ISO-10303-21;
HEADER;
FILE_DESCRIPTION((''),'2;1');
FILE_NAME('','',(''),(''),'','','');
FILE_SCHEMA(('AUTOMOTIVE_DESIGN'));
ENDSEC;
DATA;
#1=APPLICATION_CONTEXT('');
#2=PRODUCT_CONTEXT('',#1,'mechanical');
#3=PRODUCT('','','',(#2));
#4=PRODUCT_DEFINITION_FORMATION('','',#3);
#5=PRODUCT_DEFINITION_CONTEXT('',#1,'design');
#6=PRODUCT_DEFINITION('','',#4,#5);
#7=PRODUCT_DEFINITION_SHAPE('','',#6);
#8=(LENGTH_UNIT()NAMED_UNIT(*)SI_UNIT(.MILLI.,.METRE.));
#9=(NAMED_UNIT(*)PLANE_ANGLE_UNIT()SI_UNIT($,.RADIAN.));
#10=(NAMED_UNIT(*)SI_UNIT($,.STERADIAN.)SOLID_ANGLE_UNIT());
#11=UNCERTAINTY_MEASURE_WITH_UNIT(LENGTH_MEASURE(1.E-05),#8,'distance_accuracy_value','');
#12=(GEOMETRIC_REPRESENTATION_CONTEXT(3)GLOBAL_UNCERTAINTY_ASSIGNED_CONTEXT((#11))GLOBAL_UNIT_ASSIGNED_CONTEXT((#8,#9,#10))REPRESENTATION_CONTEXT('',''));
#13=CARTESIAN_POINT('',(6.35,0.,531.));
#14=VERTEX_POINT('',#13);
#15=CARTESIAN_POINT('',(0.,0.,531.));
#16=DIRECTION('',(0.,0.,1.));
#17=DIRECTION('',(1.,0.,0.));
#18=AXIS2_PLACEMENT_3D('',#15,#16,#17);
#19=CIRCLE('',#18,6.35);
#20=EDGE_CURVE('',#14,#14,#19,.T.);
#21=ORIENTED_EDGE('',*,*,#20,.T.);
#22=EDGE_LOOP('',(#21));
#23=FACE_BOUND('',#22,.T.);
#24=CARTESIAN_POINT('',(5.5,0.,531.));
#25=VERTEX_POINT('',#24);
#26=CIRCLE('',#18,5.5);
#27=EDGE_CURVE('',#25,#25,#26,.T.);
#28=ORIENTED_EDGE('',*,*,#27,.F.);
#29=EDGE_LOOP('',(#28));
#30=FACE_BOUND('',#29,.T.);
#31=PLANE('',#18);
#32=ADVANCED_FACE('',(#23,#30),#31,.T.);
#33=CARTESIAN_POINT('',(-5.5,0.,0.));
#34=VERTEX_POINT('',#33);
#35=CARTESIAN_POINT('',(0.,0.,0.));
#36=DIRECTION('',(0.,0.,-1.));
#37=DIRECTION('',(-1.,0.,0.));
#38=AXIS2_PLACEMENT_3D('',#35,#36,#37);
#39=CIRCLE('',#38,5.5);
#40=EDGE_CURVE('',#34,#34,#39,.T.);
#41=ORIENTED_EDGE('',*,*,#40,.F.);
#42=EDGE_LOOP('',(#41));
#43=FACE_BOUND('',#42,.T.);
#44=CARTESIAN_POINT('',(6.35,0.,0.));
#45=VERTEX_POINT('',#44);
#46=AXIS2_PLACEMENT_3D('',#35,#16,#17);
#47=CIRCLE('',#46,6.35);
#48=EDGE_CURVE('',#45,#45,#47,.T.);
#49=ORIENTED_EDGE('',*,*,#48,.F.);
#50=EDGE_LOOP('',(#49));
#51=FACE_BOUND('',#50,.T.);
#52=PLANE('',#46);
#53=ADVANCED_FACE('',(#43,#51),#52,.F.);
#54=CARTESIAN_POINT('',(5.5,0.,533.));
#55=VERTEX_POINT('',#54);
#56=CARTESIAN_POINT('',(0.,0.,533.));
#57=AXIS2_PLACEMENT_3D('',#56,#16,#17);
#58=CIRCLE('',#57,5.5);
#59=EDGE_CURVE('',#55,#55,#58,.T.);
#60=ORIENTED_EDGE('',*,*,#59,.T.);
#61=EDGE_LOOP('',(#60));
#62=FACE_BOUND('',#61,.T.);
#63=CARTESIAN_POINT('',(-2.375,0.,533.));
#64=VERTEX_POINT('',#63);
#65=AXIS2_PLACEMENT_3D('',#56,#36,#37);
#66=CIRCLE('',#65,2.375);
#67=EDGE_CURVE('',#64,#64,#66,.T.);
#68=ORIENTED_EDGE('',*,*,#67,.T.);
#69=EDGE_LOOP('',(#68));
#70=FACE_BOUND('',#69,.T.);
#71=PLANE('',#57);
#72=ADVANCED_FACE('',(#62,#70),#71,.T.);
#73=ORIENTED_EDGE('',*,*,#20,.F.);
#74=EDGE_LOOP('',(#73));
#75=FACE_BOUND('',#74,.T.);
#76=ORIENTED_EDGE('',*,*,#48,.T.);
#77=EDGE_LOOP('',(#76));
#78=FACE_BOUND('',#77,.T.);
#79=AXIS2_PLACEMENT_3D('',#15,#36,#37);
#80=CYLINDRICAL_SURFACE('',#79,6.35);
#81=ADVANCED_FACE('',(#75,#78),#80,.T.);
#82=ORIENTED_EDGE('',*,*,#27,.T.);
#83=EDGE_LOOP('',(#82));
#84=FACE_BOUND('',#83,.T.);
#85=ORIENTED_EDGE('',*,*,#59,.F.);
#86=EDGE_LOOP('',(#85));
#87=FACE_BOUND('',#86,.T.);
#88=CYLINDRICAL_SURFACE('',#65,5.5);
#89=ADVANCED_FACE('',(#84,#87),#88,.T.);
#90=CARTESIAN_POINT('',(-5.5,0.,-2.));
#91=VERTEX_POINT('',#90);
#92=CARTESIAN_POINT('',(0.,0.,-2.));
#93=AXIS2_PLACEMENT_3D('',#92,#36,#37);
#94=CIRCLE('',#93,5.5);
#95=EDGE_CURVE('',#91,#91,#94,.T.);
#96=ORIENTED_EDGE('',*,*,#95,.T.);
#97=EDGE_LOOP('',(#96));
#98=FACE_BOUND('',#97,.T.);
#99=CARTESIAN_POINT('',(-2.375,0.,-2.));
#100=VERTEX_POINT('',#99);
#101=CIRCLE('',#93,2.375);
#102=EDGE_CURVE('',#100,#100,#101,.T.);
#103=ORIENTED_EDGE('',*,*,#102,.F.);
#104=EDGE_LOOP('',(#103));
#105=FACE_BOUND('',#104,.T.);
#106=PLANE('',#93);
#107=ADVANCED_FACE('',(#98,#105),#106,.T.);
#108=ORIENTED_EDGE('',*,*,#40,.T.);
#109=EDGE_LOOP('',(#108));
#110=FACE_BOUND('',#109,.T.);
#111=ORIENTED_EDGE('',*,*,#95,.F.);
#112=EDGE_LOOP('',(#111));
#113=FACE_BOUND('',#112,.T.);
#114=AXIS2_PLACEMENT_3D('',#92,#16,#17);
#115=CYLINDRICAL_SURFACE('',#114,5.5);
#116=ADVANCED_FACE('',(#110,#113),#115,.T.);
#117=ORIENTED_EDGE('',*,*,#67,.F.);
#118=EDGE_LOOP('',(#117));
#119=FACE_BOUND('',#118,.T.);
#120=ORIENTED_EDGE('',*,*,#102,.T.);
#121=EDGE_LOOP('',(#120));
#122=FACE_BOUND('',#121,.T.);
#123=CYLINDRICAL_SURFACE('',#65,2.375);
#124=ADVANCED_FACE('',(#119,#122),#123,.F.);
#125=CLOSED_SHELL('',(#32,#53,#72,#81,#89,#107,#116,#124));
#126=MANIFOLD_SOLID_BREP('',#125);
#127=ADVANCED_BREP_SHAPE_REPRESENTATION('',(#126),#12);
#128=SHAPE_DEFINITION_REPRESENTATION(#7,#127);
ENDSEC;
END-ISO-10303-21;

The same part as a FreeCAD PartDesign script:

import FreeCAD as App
import Part
import Sketcher

doc = App.newDocument("Part")
body = doc.addObject("PartDesign::Body", "Body")

# Sketch on XY plane
sketch1 = body.newObject("Sketcher::SketchObject", "Sketch")
sketch1.AttachmentSupport = (doc.getObject("XY_Plane"), [""])
sketch1.MapMode = "FlatFace"
sketch1.addGeometry(Part.Circle(App.Vector(0, 0, 0), App.Vector(0, 0, 1), 6.35), False)
sketch1.addConstraint(Sketcher.Constraint("Coincident", 0, 3, -1, 1))
sketch1.addConstraint(Sketcher.Constraint("Diameter", 0, 12.7))
pad1 = body.newObject("PartDesign::Pad", "Pad")
pad1.Profile = sketch1
pad1.Length = 531

# Sketch on XY plane
sketch2 = body.newObject("Sketcher::SketchObject", "Sketch001")
sketch2.AttachmentSupport = (doc.getObject("XY_Plane"), [""])
sketch2.MapMode = "FlatFace"
sketch2.AttachmentOffset = App.Placement(App.Vector(0, 0, 531), App.Rotation())
sketch2.addGeometry(Part.Circle(App.Vector(0, 0, 0), App.Vector(0, 0, 1), 5.5), False)
sketch2.addConstraint(Sketcher.Constraint("Coincident", 0, 3, -1, 1))
sketch2.addConstraint(Sketcher.Constraint("Diameter", 0, 11.0))
pad2 = body.newObject("PartDesign::Pad", "Pad001")
pad2.Profile = sketch2
pad2.Length = 2

# Sketch on XY plane
sketch3 = body.newObject("Sketcher::SketchObject", "Sketch002")
sketch3.AttachmentSupport = (doc.getObject("XY_Plane"), [""])
sketch3.MapMode = "FlatFace"
sketch3.AttachmentOffset = App.Placement(App.Vector(0, 0, -2), App.Rotation())
sketch3.addGeometry(Part.Circle(App.Vector(0, 0, 0), App.Vector(0, 0, 1), 5.5), False)
sketch3.addConstraint(Sketcher.Constraint("Coincident", 0, 3, -1, 1))
sketch3.addConstraint(Sketcher.Constraint("Diameter", 0, 11.0))
pad3 = body.newObject("PartDesign::Pad", "Pad002")
pad3.Profile = sketch3
pad3.Length = 2

# Sketch on XY plane
sketch4 = body.newObject("Sketcher::SketchObject", "Sketch003")
sketch4.AttachmentSupport = (doc.getObject("XY_Plane"), [""])
sketch4.MapMode = "FlatFace"
sketch4.AttachmentOffset = App.Placement(App.Vector(0, 0, -2), App.Rotation())
sketch4.addGeometry(Part.Circle(App.Vector(0, 0, 0), App.Vector(0, 0, 1), 2.375), False)
sketch4.addConstraint(Sketcher.Constraint("Coincident", 0, 3, -1, 1))
sketch4.addConstraint(Sketcher.Constraint("Diameter", 0, 4.75))
pocket1 = body.newObject("PartDesign::Pocket", "Pocket")
pocket1.Profile = sketch4
pocket1.Type = "ThroughAll"
pocket1.Midplane = True

doc.recompute()
